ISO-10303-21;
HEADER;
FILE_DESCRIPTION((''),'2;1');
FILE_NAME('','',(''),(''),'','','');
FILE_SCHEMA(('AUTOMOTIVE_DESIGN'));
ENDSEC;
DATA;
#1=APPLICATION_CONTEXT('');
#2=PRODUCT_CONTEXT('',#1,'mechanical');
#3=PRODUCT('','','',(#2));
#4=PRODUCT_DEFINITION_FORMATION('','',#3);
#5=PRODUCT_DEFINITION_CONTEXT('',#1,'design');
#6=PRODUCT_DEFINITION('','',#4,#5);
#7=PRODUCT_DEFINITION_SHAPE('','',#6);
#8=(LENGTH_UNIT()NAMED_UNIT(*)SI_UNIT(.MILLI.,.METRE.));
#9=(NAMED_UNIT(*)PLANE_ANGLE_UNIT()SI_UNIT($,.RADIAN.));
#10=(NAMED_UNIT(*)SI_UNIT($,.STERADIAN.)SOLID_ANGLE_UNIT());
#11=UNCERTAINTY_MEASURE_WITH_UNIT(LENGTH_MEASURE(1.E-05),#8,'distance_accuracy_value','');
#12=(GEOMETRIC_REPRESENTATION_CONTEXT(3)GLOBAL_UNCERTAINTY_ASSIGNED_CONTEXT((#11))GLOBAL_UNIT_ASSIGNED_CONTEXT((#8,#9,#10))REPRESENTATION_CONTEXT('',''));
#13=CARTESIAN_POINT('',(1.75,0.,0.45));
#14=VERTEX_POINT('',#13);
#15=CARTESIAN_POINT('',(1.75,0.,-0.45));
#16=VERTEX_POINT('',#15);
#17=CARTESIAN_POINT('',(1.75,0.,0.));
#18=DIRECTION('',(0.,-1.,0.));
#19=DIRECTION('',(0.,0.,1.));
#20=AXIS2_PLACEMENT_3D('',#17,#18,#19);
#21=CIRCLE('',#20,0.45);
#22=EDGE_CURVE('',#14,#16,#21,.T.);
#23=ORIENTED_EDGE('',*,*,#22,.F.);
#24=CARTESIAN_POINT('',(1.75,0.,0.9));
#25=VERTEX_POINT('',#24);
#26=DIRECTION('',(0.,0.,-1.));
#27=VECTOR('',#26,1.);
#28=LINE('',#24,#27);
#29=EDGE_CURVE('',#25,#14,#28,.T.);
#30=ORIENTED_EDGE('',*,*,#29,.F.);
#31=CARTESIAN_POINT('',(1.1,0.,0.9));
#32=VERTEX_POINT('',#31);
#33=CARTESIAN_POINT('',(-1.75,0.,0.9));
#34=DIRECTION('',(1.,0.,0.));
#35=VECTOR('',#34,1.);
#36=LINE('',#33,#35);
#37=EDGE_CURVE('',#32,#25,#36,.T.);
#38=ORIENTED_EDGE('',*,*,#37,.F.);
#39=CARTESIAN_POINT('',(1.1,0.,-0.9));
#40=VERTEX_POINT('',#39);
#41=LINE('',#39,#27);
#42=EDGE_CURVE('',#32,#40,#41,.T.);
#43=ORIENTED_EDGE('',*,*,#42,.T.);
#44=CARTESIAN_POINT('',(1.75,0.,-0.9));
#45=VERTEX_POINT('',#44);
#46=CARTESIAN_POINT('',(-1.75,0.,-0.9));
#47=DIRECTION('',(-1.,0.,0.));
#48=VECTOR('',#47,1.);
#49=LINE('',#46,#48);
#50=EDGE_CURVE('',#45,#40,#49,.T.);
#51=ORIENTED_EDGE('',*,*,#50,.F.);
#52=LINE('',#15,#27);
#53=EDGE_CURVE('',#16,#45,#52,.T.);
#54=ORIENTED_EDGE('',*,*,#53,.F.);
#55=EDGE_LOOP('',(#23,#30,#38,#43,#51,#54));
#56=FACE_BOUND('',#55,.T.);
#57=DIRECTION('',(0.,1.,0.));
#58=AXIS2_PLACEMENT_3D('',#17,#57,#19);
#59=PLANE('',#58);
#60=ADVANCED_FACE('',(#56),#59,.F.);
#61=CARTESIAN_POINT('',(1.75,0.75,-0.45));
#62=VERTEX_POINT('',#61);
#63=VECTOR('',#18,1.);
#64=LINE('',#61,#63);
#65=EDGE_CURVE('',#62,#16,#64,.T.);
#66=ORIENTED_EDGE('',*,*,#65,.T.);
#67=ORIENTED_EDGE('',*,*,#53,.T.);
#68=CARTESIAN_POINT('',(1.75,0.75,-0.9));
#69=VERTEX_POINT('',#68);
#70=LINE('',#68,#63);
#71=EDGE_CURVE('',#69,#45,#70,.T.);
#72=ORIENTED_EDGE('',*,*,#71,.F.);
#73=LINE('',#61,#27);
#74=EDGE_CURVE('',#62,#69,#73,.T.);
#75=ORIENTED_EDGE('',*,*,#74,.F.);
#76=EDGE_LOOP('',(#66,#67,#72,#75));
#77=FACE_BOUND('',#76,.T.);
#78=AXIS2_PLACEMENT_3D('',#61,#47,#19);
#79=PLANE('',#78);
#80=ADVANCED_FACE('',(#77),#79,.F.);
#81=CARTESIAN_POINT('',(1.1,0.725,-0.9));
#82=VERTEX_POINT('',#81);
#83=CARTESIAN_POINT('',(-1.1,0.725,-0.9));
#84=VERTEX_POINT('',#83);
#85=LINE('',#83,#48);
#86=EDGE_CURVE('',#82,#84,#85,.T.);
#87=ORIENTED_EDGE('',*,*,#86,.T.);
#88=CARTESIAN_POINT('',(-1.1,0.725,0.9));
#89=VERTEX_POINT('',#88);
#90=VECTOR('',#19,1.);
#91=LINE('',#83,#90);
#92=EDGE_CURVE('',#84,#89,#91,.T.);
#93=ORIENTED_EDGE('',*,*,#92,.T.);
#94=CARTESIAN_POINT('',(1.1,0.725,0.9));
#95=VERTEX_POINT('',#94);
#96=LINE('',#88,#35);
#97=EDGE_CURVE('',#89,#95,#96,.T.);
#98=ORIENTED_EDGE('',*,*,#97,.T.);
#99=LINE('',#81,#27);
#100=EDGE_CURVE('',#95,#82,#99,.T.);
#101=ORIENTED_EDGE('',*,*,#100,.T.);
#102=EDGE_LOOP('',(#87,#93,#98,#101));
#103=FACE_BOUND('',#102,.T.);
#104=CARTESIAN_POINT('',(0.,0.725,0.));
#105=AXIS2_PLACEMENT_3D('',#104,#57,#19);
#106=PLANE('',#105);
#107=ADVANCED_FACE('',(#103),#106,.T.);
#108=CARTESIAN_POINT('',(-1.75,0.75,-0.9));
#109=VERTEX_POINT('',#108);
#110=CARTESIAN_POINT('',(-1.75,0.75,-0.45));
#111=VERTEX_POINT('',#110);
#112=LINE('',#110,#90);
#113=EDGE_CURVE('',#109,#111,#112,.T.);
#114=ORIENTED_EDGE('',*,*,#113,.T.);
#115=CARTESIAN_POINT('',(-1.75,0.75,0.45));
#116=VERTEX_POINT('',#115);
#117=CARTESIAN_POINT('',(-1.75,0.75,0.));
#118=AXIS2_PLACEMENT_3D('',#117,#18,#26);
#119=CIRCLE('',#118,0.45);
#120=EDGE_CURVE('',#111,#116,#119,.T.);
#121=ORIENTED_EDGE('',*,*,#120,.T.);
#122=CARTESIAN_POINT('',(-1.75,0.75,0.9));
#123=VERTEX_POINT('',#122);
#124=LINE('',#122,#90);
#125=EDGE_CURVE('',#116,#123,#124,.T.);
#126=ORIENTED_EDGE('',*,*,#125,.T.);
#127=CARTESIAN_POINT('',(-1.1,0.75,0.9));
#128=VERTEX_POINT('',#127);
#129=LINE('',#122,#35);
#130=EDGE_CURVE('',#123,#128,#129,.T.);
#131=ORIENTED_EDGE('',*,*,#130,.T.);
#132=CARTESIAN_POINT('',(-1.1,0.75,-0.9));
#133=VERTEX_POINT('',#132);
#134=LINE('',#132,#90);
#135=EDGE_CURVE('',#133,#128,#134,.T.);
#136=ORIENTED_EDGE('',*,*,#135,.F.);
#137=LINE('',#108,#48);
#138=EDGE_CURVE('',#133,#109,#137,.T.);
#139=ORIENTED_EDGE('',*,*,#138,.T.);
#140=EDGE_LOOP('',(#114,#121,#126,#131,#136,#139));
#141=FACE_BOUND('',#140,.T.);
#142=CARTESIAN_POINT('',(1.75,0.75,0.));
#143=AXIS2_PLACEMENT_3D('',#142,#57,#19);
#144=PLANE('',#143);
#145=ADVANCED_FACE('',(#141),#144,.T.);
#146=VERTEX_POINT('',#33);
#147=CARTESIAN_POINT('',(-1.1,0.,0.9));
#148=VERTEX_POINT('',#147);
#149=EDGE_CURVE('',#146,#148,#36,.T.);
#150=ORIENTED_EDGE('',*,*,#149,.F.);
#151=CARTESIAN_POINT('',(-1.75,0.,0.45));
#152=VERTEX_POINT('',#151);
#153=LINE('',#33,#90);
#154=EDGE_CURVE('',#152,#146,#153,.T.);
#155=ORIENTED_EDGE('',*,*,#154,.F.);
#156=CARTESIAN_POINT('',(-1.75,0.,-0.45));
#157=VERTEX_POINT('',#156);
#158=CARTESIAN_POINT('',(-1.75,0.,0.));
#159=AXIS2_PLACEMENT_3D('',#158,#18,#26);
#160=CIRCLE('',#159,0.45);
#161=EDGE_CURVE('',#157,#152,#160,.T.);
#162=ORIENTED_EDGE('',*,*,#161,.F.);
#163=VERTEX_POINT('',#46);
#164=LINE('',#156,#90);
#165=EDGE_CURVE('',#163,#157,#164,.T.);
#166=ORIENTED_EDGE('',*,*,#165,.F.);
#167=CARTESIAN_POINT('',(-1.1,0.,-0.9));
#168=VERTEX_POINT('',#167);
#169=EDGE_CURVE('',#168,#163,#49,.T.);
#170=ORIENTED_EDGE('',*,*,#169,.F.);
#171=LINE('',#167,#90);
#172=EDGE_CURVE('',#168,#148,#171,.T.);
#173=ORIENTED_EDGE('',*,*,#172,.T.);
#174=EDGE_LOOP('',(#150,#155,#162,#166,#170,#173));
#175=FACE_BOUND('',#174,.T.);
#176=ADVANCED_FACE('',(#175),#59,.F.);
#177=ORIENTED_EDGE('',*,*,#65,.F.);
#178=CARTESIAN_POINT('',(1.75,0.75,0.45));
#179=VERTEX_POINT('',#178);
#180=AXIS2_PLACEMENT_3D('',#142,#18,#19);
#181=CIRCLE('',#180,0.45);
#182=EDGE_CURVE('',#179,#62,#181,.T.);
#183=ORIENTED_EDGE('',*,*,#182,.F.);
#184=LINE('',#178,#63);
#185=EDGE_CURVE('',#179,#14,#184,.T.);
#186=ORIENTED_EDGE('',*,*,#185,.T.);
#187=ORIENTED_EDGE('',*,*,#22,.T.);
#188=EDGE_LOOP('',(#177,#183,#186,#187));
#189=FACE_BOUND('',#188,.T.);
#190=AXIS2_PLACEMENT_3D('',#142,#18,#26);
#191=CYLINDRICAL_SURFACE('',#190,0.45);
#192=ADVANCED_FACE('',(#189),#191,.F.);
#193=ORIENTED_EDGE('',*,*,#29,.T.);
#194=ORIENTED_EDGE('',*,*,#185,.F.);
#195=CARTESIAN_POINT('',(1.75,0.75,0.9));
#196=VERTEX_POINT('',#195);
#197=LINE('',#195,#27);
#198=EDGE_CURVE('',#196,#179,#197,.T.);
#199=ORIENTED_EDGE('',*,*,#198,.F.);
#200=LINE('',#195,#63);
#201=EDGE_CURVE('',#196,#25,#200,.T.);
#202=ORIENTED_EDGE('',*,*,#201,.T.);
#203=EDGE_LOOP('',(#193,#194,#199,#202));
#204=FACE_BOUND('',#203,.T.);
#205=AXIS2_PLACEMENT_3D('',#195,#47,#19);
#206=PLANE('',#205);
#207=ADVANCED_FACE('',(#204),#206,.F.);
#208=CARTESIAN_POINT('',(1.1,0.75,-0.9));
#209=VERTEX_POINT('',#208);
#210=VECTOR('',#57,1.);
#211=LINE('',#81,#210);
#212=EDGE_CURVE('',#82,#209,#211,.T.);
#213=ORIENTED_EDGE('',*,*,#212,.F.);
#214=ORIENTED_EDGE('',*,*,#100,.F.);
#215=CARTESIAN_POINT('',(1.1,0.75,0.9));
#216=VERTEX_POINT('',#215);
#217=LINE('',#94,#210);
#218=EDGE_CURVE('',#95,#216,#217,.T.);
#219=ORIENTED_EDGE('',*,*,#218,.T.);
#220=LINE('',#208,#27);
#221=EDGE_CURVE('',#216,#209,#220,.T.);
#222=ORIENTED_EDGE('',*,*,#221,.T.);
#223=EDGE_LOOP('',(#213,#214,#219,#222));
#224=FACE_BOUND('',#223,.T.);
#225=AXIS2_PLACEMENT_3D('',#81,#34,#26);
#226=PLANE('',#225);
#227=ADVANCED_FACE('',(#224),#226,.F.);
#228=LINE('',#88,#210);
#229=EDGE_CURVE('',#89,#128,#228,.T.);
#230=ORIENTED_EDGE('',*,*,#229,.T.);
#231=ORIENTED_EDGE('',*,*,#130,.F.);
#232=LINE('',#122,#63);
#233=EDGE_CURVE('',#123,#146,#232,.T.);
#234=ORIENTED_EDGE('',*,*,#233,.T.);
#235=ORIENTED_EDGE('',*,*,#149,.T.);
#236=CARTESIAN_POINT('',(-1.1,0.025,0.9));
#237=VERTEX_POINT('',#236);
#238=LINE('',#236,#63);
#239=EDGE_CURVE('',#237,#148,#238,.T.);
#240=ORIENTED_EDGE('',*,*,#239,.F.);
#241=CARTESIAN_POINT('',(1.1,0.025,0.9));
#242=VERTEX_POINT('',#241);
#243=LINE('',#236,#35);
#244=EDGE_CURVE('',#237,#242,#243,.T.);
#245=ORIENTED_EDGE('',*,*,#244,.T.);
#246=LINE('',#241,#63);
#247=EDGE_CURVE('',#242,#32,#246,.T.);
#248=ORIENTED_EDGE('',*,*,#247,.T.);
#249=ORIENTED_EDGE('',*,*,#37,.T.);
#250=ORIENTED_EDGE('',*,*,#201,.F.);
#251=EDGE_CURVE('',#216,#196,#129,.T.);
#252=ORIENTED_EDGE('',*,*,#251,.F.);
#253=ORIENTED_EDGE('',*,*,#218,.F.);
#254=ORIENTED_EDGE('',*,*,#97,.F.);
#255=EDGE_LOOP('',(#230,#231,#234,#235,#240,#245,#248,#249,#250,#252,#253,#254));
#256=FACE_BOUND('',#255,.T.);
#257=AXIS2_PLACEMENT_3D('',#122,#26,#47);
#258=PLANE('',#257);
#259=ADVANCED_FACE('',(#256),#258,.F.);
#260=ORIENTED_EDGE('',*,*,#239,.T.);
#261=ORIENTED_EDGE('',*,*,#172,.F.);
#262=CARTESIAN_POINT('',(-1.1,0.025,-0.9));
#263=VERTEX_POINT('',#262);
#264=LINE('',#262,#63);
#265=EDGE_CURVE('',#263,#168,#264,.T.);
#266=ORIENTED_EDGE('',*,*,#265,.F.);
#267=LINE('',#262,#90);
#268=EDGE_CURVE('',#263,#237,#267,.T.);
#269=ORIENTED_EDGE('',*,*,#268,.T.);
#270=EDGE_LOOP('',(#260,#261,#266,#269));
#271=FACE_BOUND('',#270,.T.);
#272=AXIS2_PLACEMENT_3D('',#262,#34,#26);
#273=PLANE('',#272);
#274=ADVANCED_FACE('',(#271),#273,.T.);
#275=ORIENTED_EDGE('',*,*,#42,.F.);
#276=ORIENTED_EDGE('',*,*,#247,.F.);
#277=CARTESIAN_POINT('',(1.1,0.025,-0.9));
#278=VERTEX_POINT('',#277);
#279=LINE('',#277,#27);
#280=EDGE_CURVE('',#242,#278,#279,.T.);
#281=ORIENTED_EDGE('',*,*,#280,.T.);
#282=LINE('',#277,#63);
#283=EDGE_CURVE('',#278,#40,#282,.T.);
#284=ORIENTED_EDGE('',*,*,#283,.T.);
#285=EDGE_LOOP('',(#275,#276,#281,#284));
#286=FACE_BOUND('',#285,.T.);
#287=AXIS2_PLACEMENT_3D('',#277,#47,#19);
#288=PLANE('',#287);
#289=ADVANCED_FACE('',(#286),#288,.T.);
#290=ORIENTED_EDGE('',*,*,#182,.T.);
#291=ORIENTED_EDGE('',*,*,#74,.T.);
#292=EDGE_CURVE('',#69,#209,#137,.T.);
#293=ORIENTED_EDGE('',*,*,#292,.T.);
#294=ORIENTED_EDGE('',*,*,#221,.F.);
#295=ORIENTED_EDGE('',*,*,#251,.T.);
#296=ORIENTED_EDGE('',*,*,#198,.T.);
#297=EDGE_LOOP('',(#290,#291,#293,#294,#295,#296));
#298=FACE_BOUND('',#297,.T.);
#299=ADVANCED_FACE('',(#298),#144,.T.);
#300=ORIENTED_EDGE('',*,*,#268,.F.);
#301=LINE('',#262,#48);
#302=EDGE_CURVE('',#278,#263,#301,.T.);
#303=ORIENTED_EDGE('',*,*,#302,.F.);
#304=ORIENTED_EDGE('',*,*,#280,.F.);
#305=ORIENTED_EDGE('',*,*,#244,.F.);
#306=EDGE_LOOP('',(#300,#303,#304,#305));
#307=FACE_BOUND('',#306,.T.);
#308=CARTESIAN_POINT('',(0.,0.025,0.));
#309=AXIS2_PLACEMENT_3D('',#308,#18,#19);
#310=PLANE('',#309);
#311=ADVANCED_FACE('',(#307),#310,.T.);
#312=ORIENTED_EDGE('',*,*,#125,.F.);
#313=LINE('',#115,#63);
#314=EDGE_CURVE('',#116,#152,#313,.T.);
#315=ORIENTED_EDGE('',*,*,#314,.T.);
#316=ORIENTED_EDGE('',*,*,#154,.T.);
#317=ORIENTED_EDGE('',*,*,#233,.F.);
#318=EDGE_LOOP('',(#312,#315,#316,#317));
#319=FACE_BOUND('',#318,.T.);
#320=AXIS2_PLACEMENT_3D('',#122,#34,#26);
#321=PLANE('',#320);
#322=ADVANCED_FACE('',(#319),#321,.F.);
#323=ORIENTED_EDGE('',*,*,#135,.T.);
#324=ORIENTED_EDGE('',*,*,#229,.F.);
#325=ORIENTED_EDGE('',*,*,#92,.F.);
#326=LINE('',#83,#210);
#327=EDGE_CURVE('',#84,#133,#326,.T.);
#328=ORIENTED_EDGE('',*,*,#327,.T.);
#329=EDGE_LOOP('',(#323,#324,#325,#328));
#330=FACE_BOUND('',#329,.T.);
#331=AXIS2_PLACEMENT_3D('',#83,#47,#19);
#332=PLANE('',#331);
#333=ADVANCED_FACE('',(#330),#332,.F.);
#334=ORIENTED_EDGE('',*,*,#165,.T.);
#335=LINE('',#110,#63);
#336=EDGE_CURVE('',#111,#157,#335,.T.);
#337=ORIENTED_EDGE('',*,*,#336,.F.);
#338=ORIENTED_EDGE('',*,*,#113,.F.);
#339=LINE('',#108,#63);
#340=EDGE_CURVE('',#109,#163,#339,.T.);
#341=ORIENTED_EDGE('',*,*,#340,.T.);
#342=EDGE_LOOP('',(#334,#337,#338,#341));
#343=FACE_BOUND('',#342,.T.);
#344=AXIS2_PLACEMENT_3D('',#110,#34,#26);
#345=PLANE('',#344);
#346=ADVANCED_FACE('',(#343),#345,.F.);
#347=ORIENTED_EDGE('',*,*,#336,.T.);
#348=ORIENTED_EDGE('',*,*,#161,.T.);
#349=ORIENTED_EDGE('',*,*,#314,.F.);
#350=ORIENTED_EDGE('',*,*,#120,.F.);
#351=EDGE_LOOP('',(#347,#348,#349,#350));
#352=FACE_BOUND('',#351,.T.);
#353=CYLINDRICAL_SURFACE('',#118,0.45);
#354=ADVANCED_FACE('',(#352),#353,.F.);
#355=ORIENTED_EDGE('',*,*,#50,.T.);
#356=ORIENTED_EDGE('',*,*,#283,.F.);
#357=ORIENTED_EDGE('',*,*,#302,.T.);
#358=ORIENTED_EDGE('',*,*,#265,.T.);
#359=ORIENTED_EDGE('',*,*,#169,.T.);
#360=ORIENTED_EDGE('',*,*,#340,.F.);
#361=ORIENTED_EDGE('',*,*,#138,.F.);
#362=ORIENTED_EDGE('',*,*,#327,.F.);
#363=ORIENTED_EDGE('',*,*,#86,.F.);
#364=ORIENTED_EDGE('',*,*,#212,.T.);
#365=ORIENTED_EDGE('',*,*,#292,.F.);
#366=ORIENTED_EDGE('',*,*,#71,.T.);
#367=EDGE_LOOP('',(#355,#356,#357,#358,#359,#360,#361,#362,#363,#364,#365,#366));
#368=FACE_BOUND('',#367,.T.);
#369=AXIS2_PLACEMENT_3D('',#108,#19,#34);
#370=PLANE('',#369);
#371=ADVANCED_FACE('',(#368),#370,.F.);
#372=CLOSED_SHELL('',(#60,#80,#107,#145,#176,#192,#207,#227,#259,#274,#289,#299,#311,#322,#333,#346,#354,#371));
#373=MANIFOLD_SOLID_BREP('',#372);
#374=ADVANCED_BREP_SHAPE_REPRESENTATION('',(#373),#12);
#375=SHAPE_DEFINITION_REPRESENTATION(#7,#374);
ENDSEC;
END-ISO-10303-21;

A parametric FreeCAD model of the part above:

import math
import FreeCAD as App
import Part
import Sketcher
from FreeCAD import Vector


def add_polygon(sketch, points):
    """Adds a closed chain of lines whose ends are joined by coincident constraints."""
    first, n = sketch.GeometryCount, len(points)
    for a, b in zip(points, points[1:] + points[:1]):
        sketch.addGeometry(Part.LineSegment(App.Vector(*a, 0), App.Vector(*b, 0)), False)
    for i in range(n):
        sketch.addConstraint(Sketcher.Constraint("Coincident", first + i, 2, first + (i + 1) % n, 1))

doc = App.newDocument("Part")
params = doc.addObject("Spreadsheet::Sheet", "Params")
for row, (alias, value) in enumerate([
    ("sketch1_radius", "0.45 mm"),
    ("sketch1_width", "3.5 mm"),
    ("sketch1_height", "0.45 mm"),
    ("pad1_length", "0.75 mm"),
    ("sketch2_width", "2.2 mm"),
    ("sketch2_height", "1.8 mm"),
    ("pocket1_length", "0.025 mm"),
], start=1):
    params.set(f"A{row}", alias)
    params.set(f"B{row}", "=" + value)
    params.setAlias(f"B{row}", alias)

body = doc.addObject("PartDesign::Body", "Body")

sketch1 = body.newObject("Sketcher::SketchObject", "Sketch")
sketch1.AttachmentSupport = (doc.getObject("XZ_Plane"), [""])
sketch1.MapMode = "FlatFace"
sketch1.addGeometry([
    Part.LineSegment(Vector(1.75, -0.45, 0), Vector(1.75, -0.9, 0)),
    Part.LineSegment(Vector(1.75, -0.9, 0), Vector(-1.75, -0.9, 0)),
    Part.LineSegment(Vector(-1.75, -0.9, 0), Vector(-1.75, -0.45, 0)),
    Part.ArcOfCircle(Part.Circle(Vector(-1.75, 0, 0), Vector(0, 0, 1), 0.45), math.radians(-90), math.radians(90)),
    Part.LineSegment(Vector(-1.75, 0.45, 0), Vector(-1.75, 0.9, 0)),
    Part.LineSegment(Vector(-1.75, 0.9, 0), Vector(1.75, 0.9, 0)),
    Part.LineSegment(Vector(1.75, 0.9, 0), Vector(1.75, 0.45, 0)),
    Part.ArcOfCircle(Part.Circle(Vector(1.75, 0, 0), Vector(0, 0, 1), 0.45), math.radians(90), math.radians(270)),
], False)
sketch1.addConstraint([
    Sketcher.Constraint("Coincident", 0, 2, 1, 1),
    Sketcher.Constraint("Coincident", 1, 2, 2, 1),
    Sketcher.Constraint("Coincident", 2, 2, 3, 1),
    Sketcher.Constraint("Coincident", 3, 2, 4, 1),
    Sketcher.Constraint("Coincident", 4, 2, 5, 1),
    Sketcher.Constraint("Coincident", 5, 2, 6, 1),
    Sketcher.Constraint("Coincident", 6, 2, 7, 1),
    Sketcher.Constraint("Coincident", 7, 2, 0, 1),
    Sketcher.Constraint("Vertical", 0),
    Sketcher.Constraint("Horizontal", 1),
    Sketcher.Constraint("Vertical", 2),
    Sketcher.Constraint("Vertical", 4),
    Sketcher.Constraint("Horizontal", 5),
    Sketcher.Constraint("Vertical", 6),
    Sketcher.Constraint("Equal", 3, 7),
    Sketcher.Constraint("Symmetric", 3, 3, 7, 3, -1, 1),
    Sketcher.Constraint("Symmetric", 0, 2, 4, 2, -1, 1),
    Sketcher.Constraint("Symmetric", 3, 2, 6, 2, -2),
    Sketcher.Constraint("Vertical", 7, 3, 0, 2),
    Sketcher.Constraint("Vertical", 3, 3, 1, 2),
    Sketcher.Constraint("Radius", 3, 0.45),
    Sketcher.Constraint("DistanceX", 1, 2, 1, 1, 3.5),
    Sketcher.Constraint("DistanceY", 0, 2, 0, 1, 0.45),
])
sketch1.setExpression("Constraints[20]", "Params.sketch1_radius")
sketch1.setExpression("Constraints[21]", "Params.sketch1_width")
sketch1.setExpression("Constraints[22]", "Params.sketch1_height")
pad1 = body.newObject("PartDesign::Pad", "Pad")
pad1.Profile = sketch1
pad1.setExpression("Length", "Params.pad1_length")
pad1.Reversed = True

sketch2 = body.newObject("Sketcher::SketchObject", "Sketch001")
sketch2.AttachmentSupport = (doc.getObject("XZ_Plane"), [""])
sketch2.MapMode = "FlatFace"
sketch2.AttachmentOffset = App.Placement(Vector(0, 0, -0.75), App.Rotation())
add_polygon(sketch2, [(-1.1, -0.9), (-1.1, 0.9), (1.1, 0.9), (1.1, -0.9)])
sketch2.addConstraint([
    Sketcher.Constraint("Vertical", 0),
    Sketcher.Constraint("Horizontal", 1),
    Sketcher.Constraint("Vertical", 2),
    Sketcher.Constraint("Horizontal", 3),
    Sketcher.Constraint("Symmetric", 0, 2, 2, 2, -1, 1),
    Sketcher.Constraint("DistanceX", 1, 1, 1, 2, 2.2),
    Sketcher.Constraint("DistanceY", 0, 1, 0, 2, 1.8),
])
sketch2.setExpression("Constraints[9]", "Params.sketch2_width")
sketch2.setExpression("Constraints[10]", "Params.sketch2_height")
pocket1 = body.newObject("PartDesign::Pocket", "Pocket")
pocket1.Profile = sketch2
pocket1.setExpression("Length", "Params.pocket1_length")
pocket1.Reversed = True
doc.recompute()

datumplane = body.newObject("PartDesign::Plane", "DatumPlane")
datumplane.AttachmentSupport = (doc.getObject("XZ_Plane"), [""])
datumplane.MapMode = "FlatFace"
datumplane.AttachmentOffset = App.Placement(Vector(0, 0, -0.375), App.Rotation())
mirrored = body.newObject("PartDesign::Mirrored", "Mirrored")
mirrored.Originals = [pocket1]
mirrored.MirrorPlane = (datumplane, [""])
body.Tip = mirrored

doc.recompute()
